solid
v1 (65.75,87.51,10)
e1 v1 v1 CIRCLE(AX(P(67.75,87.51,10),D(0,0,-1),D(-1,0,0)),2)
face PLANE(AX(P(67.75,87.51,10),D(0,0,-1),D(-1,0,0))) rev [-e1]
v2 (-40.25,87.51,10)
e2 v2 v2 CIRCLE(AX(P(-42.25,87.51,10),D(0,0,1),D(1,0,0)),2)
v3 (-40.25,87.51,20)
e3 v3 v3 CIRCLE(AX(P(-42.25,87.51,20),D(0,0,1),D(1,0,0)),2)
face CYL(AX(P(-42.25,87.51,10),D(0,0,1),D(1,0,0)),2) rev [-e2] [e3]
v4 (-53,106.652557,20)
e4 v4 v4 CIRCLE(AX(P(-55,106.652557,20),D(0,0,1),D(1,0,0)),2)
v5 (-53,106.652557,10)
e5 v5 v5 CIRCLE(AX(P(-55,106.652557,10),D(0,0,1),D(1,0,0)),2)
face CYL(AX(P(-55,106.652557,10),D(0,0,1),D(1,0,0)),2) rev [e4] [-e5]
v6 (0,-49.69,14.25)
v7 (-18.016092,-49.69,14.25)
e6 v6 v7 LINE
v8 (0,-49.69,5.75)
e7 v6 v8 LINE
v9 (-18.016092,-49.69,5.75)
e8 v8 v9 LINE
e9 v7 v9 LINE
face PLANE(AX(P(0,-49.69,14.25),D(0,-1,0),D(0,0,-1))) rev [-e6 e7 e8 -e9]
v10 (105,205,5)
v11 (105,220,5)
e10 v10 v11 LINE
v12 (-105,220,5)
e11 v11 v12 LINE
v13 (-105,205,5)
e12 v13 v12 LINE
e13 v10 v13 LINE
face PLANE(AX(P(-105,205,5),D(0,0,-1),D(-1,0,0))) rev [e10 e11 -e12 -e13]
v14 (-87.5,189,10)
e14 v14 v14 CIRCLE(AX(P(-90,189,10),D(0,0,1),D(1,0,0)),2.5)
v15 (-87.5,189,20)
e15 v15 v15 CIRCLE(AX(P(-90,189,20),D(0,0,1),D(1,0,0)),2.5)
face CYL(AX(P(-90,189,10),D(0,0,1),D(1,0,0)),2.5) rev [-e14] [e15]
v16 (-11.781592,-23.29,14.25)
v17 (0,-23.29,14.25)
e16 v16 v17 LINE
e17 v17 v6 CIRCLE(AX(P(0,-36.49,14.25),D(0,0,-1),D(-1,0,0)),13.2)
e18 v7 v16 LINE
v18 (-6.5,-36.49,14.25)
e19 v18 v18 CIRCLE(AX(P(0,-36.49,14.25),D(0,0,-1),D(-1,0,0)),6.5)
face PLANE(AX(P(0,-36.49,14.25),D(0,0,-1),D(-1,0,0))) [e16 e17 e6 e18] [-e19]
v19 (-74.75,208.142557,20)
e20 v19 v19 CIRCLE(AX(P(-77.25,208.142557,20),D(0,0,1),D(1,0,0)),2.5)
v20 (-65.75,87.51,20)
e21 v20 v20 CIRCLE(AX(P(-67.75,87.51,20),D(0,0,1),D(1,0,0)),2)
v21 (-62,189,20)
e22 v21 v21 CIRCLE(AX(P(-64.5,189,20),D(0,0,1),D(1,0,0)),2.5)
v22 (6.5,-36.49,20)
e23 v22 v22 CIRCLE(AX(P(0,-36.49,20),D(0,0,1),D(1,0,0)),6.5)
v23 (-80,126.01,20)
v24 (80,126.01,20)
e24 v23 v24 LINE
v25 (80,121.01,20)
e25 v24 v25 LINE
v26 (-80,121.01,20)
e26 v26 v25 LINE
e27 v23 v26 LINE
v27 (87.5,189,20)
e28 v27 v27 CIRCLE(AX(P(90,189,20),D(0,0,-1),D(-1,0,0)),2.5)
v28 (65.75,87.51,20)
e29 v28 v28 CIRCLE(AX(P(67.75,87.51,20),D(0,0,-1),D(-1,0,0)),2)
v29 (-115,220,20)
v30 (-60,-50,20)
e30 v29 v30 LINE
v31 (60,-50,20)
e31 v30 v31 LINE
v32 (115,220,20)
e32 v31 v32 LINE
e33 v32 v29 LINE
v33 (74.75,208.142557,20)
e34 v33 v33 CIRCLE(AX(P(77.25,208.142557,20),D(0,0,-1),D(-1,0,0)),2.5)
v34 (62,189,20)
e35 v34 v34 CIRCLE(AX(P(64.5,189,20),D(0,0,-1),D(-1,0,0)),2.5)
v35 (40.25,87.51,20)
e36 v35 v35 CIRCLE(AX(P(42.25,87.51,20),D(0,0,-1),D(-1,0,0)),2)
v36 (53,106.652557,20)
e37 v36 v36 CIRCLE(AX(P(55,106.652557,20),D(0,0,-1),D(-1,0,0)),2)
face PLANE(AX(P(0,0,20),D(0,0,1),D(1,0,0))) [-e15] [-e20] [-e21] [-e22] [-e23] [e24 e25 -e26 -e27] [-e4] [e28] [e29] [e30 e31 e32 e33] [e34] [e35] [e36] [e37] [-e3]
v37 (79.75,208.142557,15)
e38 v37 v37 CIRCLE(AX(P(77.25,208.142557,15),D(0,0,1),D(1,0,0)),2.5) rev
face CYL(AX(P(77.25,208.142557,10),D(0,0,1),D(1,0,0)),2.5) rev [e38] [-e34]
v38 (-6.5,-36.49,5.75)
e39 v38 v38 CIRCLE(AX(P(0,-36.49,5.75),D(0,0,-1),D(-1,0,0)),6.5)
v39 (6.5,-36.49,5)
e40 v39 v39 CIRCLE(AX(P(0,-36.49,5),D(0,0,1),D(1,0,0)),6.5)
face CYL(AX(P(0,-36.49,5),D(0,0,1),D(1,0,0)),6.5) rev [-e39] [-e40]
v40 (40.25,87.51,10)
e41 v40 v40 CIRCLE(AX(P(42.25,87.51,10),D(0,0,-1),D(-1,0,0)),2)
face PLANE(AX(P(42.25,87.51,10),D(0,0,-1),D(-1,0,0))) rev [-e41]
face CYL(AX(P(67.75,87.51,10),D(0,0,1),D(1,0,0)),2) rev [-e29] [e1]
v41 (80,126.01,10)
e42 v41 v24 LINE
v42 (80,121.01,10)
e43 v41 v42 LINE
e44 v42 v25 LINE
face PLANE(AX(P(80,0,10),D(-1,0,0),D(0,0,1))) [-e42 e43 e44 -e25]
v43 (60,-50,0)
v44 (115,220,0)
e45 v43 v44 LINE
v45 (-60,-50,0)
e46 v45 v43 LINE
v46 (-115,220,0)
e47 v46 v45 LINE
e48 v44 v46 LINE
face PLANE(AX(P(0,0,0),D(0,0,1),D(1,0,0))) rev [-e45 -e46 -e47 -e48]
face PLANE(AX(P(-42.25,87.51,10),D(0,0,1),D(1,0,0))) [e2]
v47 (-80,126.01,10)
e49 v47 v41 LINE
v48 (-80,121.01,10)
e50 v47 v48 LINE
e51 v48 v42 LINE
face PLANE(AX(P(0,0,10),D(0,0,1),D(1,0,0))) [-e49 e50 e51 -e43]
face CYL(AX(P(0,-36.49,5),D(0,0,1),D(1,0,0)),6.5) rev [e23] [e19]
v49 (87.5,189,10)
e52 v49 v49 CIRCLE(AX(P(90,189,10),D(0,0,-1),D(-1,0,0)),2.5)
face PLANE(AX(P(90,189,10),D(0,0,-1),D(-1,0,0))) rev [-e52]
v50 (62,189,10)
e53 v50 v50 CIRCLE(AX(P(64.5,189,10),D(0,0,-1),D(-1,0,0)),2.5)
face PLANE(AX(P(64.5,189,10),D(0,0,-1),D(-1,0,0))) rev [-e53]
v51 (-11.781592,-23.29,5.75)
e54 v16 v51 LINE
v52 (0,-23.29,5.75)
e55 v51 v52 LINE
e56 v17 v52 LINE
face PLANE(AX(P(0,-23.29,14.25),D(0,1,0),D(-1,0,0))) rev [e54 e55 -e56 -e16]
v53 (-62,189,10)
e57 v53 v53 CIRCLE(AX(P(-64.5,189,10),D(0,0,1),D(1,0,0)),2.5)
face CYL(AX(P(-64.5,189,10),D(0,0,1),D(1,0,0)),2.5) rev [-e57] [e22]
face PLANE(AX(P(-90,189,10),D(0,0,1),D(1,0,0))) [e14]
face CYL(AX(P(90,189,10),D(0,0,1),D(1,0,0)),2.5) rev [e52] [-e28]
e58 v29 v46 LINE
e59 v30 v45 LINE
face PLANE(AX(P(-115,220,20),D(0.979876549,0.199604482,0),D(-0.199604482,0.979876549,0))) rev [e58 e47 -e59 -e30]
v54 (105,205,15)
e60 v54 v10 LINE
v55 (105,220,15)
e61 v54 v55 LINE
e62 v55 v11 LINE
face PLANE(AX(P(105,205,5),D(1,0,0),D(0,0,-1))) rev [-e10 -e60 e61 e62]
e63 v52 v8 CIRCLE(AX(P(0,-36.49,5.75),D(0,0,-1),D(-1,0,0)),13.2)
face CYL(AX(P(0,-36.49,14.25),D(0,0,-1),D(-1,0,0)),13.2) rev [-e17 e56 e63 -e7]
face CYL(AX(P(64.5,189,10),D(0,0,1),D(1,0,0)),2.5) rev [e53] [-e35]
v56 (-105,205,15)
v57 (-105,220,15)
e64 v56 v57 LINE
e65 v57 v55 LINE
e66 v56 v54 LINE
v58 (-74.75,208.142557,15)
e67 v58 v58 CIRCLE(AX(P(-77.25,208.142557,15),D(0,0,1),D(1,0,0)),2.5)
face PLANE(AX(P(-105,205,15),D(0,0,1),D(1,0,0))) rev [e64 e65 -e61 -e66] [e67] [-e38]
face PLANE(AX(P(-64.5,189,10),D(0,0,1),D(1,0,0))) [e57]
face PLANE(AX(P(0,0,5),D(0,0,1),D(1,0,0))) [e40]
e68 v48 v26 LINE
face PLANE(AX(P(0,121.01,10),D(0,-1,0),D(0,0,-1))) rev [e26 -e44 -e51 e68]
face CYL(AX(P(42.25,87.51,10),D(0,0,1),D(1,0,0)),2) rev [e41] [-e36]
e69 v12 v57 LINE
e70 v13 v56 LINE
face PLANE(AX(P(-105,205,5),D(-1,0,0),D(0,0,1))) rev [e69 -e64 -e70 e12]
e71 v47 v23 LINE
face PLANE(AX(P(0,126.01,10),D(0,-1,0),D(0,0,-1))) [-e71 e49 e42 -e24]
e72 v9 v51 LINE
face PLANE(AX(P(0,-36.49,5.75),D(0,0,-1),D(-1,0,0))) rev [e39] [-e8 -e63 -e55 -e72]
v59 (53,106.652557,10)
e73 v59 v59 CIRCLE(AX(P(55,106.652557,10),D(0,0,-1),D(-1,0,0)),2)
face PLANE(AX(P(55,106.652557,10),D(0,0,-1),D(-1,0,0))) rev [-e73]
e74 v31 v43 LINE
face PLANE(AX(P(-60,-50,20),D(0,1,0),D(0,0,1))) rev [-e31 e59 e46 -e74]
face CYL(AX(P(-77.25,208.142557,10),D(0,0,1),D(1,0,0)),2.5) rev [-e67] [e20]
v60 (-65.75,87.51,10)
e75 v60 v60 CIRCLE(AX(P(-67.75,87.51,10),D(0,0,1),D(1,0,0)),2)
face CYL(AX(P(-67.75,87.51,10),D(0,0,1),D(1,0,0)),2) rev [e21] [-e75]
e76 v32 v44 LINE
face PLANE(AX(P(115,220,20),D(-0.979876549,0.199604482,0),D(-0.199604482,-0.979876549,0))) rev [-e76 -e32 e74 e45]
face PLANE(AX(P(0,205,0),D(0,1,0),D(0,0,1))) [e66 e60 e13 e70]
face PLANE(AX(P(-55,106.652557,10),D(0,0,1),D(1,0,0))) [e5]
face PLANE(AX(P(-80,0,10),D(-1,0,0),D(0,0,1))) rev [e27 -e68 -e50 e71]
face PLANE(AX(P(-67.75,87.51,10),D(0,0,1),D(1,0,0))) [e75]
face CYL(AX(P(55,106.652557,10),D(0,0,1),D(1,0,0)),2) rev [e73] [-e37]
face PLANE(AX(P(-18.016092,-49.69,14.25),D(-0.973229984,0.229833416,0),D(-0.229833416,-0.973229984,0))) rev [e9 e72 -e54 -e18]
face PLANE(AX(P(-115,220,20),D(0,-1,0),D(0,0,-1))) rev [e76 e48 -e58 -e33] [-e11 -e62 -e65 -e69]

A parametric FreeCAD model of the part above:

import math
import FreeCAD as App
import Part
import Sketcher


def add_polygon(sketch, points):
    """Adds a closed chain of lines whose ends are joined by coincident constraints."""
    first, n = sketch.GeometryCount, len(points)
    for a, b in zip(points, points[1:] + points[:1]):
        sketch.addGeometry(Part.LineSegment(App.Vector(*a, 0), App.Vector(*b, 0)), False)
    for i in range(n):
        sketch.addConstraint(Sketcher.Constraint("Coincident", first + i, 2, first + (i + 1) % n, 1))

doc = App.newDocument("Part")
body = doc.addObject("PartDesign::Body", "Body")

sketch1 = doc.addObject("Sketcher::SketchObject", "Sketch")
body.addObject(sketch1)
sketch1.AttachmentSupport = (doc.XY_Plane, [""])
sketch1.MapMode = "FlatFace"
add_polygon(sketch1, [(115, 220), (-115, 220), (-60, -50), (60, -50)])
sketch1.addConstraint(Sketcher.Constraint("Horizontal", 0))
sketch1.addConstraint(Sketcher.Constraint("Horizontal", 2))
sketch1.addConstraint(Sketcher.Constraint("Equal", 1, 3))
sketch1.addConstraint(Sketcher.Constraint("DistanceX", 0, 2, 0, 1, 230.0))
sketch1.addConstraint(Sketcher.Constraint("DistanceX", 2, 1, 2, 2, 120.0))
sketch1.addConstraint(Sketcher.Constraint("DistanceX", 0, 2, -1, 1, 115.0))
sketch1.addConstraint(Sketcher.Constraint("DistanceY", -1, 1, 0, 2, 220.0))
sketch1.addConstraint(Sketcher.Constraint("DistanceY", 1, 2, -1, 1, 50.0))
pad1 = doc.addObject("PartDesign::Pad", "Pad")
body.addObject(pad1)
pad1.Profile = sketch1
pad1.Length = 20

sketch2 = doc.addObject("Sketcher::SketchObject", "Sketch001")
body.addObject(sketch2)
sketch2.AttachmentSupport = (doc.XZ_Plane, [""])
sketch2.MapMode = "FlatFace"
sketch2.AttachmentOffset = App.Placement(App.Vector(0, 0, -220), App.Rotation())
add_polygon(sketch2, [(-105, 5), (-105, 15), (105, 15), (105, 5)])
sketch2.addConstraint(Sketcher.Constraint("Vertical", 0))
sketch2.addConstraint(Sketcher.Constraint("Horizontal", 1))
sketch2.addConstraint(Sketcher.Constraint("Vertical", 2))
sketch2.addConstraint(Sketcher.Constraint("Horizontal", 3))
sketch2.addConstraint(Sketcher.Constraint("DistanceX", 1, 1, 1, 2, 210.0))
sketch2.addConstraint(Sketcher.Constraint("DistanceY", 0, 1, 0, 2, 10.0))
sketch2.addConstraint(Sketcher.Constraint("DistanceX", 0, 2, -1, 1, 105.0))
sketch2.addConstraint(Sketcher.Constraint("DistanceY", -1, 1, 0, 2, 15.0))
pocket1 = doc.addObject("PartDesign::Pocket", "Pocket")
body.addObject(pocket1)
pocket1.Profile = sketch2
pocket1.Length = 15
pocket1.Reversed = True

sketch3 = doc.addObject("Sketcher::SketchObject", "Sketch002")
body.addObject(sketch3)
sketch3.AttachmentSupport = (doc.XY_Plane, [""])
sketch3.MapMode = "FlatFace"
sketch3.AttachmentOffset = App.Placement(App.Vector(0, 0, 20), App.Rotation())
add_polygon(sketch3, [(-80, 126), (-80, 121), (80, 121), (80, 126)])
sketch3.addConstraint(Sketcher.Constraint("Vertical", 0))
sketch3.addConstraint(Sketcher.Constraint("Horizontal", 1))
sketch3.addConstraint(Sketcher.Constraint("Vertical", 2))
sketch3.addConstraint(Sketcher.Constraint("Horizontal", 3))
sketch3.addConstraint(Sketcher.Constraint("DistanceX", 1, 1, 1, 2, 160.0))
sketch3.addConstraint(Sketcher.Constraint("DistanceY", 0, 2, 0, 1, 5.0))
sketch3.addConstraint(Sketcher.Constraint("DistanceX", 0, 2, -1, 1, 80.0))
sketch3.addConstraint(Sketcher.Constraint("DistanceY", -1, 1, 0, 2, 121.01))
pocket2 = doc.addObject("PartDesign::Pocket", "Pocket001")
body.addObject(pocket2)
pocket2.Profile = sketch3
pocket2.Length = 10

sketch4 = doc.addObject("Sketcher::SketchObject", "Sketch003")
body.addObject(sketch4)
sketch4.AttachmentSupport = (doc.XY_Plane, [""])
sketch4.MapMode = "FlatFace"
sketch4.AttachmentOffset = App.Placement(App.Vector(0, 0, 20), App.Rotation())
sketch4.addGeometry(Part.Circle(App.Vector(-77.2, 208.1, 0), App.Vector(0, 0, 1), 2.5), False)
sketch4.addGeometry(Part.Circle(App.Vector(-90, 189, 0), App.Vector(0, 0, 1), 2.5), False)
sketch4.addGeometry(Part.Circle(App.Vector(-64.5, 189, 0), App.Vector(0, 0, 1), 2.5), False)
sketch4.addGeometry(Part.Circle(App.Vector(-55, 106.7, 0), App.Vector(0, 0, 1), 2), False)
sketch4.addGeometry(Part.Circle(App.Vector(-67.8, 87.5, 0), App.Vector(0, 0, 1), 2), False)
sketch4.addGeometry(Part.Circle(App.Vector(-42.2, 87.5, 0), App.Vector(0, 0, 1), 2), False)
sketch4.addGeometry(Part.Circle(App.Vector(42.2, 87.5, 0), App.Vector(0, 0, 1), 2), False)
sketch4.addGeometry(Part.Circle(App.Vector(67.8, 87.5, 0), App.Vector(0, 0, 1), 2), False)
sketch4.addGeometry(Part.Circle(App.Vector(55, 106.7, 0), App.Vector(0, 0, 1), 2), False)
sketch4.addGeometry(Part.Circle(App.Vector(64.5, 189, 0), App.Vector(0, 0, 1), 2.5), False)
sketch4.addGeometry(Part.Circle(App.Vector(90, 189, 0), App.Vector(0, 0, 1), 2.5), False)
sketch4.addGeometry(Part.Circle(App.Vector(77.2, 208.1, 0), App.Vector(0, 0, 1), 2.5), False)
sketch4.addConstraint(Sketcher.Constraint("Equal", 0, 1))
sketch4.addConstraint(Sketcher.Constraint("Equal", 1, 2))
sketch4.addConstraint(Sketcher.Constraint("Equal", 3, 4))
sketch4.addConstraint(Sketcher.Constraint("Equal", 4, 5))
sketch4.addConstraint(Sketcher.Constraint("Equal", 5, 6))
sketch4.addConstraint(Sketcher.Constraint("Equal", 6, 7))
sketch4.addConstraint(Sketcher.Constraint("Equal", 7, 8))
sketch4.addConstraint(Sketcher.Constraint("Equal", 2, 9))
sketch4.addConstraint(Sketcher.Constraint("Equal", 9, 10))
sketch4.addConstraint(Sketcher.Constraint("Equal", 10, 11))
sketch4.addConstraint(Sketcher.Constraint("Symmetric", 5, 3, 6, 3, -2))
sketch4.addConstraint(Sketcher.Constraint("Symmetric", 4, 3, 7, 3, -2))
sketch4.addConstraint(Sketcher.Constraint("Symmetric", 3, 3, 8, 3, -2))
sketch4.addConstraint(Sketcher.Constraint("Symmetric", 2, 3, 9, 3, -2))
sketch4.addConstraint(Sketcher.Constraint("Symmetric", 1, 3, 10, 3, -2))
sketch4.addConstraint(Sketcher.Constraint("Symmetric", 0, 3, 11, 3, -2))
sketch4.addConstraint(Sketcher.Constraint("Horizontal", 1, 3, 2, 3))
sketch4.addConstraint(Sketcher.Constraint("Horizontal", 4, 3, 5, 3))
sketch4.addConstraint(Sketcher.Constraint("Diameter", 0, 5.0))
sketch4.addConstraint(Sketcher.Constraint("Diameter", 3, 4.0))
sketch4.addConstraint(Sketcher.Constraint("DistanceX", 1, 3, -1, 1, 90.0))
sketch4.addConstraint(Sketcher.Constraint("DistanceY", -1, 1, 1, 3, 189.0))
sketch4.addConstraint(Sketcher.Constraint("DistanceX", 3, 3, -1, 1, 55.0))
sketch4.addConstraint(Sketcher.Constraint("DistanceX", 0, 3, 5, 3, 35.0))
sketch4.addConstraint(Sketcher.Constraint("DistanceX", 4, 3, 6, 3, 110.0))
sketch4.addConstraint(Sketcher.Constraint("DistanceX", 2, 3, 9, 3, 129.0))
sketch4.addConstraint(Sketcher.Constraint("DistanceX", 0, 3, 4, 3, 9.5))
sketch4.addConstraint(Sketcher.Constraint("DistanceY", -1, 1, 4, 3, 87.51))
sketch4.addConstraint(Sketcher.Constraint("DistanceY", 3, 3, 0, 3, 101.49))
sketch4.addConstraint(Sketcher.Constraint("DistanceY", -1, 1, 0, 3, 208.142557))
pocket3 = doc.addObject("PartDesign::Pocket", "Pocket002")
body.addObject(pocket3)
pocket3.Profile = sketch4
pocket3.Length = 10

sketch5 = doc.addObject("Sketcher::SketchObject", "Sketch004")
body.addObject(sketch5)
sketch5.AttachmentSupport = (doc.XY_Plane, [""])
sketch5.MapMode = "FlatFace"
sketch5.AttachmentOffset = App.Placement(App.Vector(0, 0, 10), App.Rotation())
sketch5.addGeometry(Part.LineSegment(App.Vector(0, -50, 0), App.Vector(-18, -50, 0)), False)
sketch5.addGeometry(Part.LineSegment(App.Vector(-18, -50, 0), App.Vector(-12, -23, 0)), False)
sketch5.addGeometry(Part.LineSegment(App.Vector(-12, -23, 0), App.Vector(0, -23, 0)), False)
sketch5.addGeometry(Part.ArcOfCircle(Part.Circle(App.Vector(0, -36, 0), App.Vector(0, 0, 1), 13), math.radians(-90), math.radians(90)), False)
sketch5.addConstraint(Sketcher.Constraint("Coincident", 0, 2, 1, 1))
sketch5.addConstraint(Sketcher.Constraint("Coincident", 1, 2, 2, 1))
sketch5.addConstraint(Sketcher.Constraint("Tangent", 2, 2, 3, 2))
sketch5.addConstraint(Sketcher.Constraint("Tangent", 3, 1, 0, 1))
sketch5.addConstraint(Sketcher.Constraint("Horizontal", 0))
sketch5.addConstraint(Sketcher.Constraint("Horizontal", 2))
sketch5.addConstraint(Sketcher.Constraint("PointOnObject", 3, 3, -2))
sketch5.addConstraint(Sketcher.Constraint("Radius", 3, 13.2))
sketch5.addConstraint(Sketcher.Constraint("DistanceY", 3, 3, -1, 1, 36.49))
sketch5.addConstraint(Sketcher.Constraint("DistanceX", 0, 2, 1, 2, 6.2345))
sketch5.addConstraint(Sketcher.Constraint("DistanceX", 0, 2, 0, 1, 18.016092))
pocket4 = doc.addObject("PartDesign::Pocket", "Pocket003")
body.addObject(pocket4)
pocket4.Profile = sketch5
pocket4.Length = 8.5
pocket4.Midplane = True

sketch6 = doc.addObject("Sketcher::SketchObject", "Sketch005")
body.addObject(sketch6)
sketch6.AttachmentSupport = (doc.XY_Plane, [""])
sketch6.MapMode = "FlatFace"
sketch6.AttachmentOffset = App.Placement(App.Vector(0, 0, 20), App.Rotation())
sketch6.addGeometry(Part.Circle(App.Vector(0, -36, 0), App.Vector(0, 0, 1), 6), False)
sketch6.addConstraint(Sketcher.Constraint("PointOnObject", 0, 3, -2))
sketch6.addConstraint(Sketcher.Constraint("Diameter", 0, 13.0))
sketch6.addConstraint(Sketcher.Constraint("DistanceY", 0, 3, -1, 1, 36.49))
pocket5 = doc.addObject("PartDesign::Pocket", "Pocket004")
body.addObject(pocket5)
pocket5.Profile = sketch6
pocket5.Length = 15

doc.recompute()
